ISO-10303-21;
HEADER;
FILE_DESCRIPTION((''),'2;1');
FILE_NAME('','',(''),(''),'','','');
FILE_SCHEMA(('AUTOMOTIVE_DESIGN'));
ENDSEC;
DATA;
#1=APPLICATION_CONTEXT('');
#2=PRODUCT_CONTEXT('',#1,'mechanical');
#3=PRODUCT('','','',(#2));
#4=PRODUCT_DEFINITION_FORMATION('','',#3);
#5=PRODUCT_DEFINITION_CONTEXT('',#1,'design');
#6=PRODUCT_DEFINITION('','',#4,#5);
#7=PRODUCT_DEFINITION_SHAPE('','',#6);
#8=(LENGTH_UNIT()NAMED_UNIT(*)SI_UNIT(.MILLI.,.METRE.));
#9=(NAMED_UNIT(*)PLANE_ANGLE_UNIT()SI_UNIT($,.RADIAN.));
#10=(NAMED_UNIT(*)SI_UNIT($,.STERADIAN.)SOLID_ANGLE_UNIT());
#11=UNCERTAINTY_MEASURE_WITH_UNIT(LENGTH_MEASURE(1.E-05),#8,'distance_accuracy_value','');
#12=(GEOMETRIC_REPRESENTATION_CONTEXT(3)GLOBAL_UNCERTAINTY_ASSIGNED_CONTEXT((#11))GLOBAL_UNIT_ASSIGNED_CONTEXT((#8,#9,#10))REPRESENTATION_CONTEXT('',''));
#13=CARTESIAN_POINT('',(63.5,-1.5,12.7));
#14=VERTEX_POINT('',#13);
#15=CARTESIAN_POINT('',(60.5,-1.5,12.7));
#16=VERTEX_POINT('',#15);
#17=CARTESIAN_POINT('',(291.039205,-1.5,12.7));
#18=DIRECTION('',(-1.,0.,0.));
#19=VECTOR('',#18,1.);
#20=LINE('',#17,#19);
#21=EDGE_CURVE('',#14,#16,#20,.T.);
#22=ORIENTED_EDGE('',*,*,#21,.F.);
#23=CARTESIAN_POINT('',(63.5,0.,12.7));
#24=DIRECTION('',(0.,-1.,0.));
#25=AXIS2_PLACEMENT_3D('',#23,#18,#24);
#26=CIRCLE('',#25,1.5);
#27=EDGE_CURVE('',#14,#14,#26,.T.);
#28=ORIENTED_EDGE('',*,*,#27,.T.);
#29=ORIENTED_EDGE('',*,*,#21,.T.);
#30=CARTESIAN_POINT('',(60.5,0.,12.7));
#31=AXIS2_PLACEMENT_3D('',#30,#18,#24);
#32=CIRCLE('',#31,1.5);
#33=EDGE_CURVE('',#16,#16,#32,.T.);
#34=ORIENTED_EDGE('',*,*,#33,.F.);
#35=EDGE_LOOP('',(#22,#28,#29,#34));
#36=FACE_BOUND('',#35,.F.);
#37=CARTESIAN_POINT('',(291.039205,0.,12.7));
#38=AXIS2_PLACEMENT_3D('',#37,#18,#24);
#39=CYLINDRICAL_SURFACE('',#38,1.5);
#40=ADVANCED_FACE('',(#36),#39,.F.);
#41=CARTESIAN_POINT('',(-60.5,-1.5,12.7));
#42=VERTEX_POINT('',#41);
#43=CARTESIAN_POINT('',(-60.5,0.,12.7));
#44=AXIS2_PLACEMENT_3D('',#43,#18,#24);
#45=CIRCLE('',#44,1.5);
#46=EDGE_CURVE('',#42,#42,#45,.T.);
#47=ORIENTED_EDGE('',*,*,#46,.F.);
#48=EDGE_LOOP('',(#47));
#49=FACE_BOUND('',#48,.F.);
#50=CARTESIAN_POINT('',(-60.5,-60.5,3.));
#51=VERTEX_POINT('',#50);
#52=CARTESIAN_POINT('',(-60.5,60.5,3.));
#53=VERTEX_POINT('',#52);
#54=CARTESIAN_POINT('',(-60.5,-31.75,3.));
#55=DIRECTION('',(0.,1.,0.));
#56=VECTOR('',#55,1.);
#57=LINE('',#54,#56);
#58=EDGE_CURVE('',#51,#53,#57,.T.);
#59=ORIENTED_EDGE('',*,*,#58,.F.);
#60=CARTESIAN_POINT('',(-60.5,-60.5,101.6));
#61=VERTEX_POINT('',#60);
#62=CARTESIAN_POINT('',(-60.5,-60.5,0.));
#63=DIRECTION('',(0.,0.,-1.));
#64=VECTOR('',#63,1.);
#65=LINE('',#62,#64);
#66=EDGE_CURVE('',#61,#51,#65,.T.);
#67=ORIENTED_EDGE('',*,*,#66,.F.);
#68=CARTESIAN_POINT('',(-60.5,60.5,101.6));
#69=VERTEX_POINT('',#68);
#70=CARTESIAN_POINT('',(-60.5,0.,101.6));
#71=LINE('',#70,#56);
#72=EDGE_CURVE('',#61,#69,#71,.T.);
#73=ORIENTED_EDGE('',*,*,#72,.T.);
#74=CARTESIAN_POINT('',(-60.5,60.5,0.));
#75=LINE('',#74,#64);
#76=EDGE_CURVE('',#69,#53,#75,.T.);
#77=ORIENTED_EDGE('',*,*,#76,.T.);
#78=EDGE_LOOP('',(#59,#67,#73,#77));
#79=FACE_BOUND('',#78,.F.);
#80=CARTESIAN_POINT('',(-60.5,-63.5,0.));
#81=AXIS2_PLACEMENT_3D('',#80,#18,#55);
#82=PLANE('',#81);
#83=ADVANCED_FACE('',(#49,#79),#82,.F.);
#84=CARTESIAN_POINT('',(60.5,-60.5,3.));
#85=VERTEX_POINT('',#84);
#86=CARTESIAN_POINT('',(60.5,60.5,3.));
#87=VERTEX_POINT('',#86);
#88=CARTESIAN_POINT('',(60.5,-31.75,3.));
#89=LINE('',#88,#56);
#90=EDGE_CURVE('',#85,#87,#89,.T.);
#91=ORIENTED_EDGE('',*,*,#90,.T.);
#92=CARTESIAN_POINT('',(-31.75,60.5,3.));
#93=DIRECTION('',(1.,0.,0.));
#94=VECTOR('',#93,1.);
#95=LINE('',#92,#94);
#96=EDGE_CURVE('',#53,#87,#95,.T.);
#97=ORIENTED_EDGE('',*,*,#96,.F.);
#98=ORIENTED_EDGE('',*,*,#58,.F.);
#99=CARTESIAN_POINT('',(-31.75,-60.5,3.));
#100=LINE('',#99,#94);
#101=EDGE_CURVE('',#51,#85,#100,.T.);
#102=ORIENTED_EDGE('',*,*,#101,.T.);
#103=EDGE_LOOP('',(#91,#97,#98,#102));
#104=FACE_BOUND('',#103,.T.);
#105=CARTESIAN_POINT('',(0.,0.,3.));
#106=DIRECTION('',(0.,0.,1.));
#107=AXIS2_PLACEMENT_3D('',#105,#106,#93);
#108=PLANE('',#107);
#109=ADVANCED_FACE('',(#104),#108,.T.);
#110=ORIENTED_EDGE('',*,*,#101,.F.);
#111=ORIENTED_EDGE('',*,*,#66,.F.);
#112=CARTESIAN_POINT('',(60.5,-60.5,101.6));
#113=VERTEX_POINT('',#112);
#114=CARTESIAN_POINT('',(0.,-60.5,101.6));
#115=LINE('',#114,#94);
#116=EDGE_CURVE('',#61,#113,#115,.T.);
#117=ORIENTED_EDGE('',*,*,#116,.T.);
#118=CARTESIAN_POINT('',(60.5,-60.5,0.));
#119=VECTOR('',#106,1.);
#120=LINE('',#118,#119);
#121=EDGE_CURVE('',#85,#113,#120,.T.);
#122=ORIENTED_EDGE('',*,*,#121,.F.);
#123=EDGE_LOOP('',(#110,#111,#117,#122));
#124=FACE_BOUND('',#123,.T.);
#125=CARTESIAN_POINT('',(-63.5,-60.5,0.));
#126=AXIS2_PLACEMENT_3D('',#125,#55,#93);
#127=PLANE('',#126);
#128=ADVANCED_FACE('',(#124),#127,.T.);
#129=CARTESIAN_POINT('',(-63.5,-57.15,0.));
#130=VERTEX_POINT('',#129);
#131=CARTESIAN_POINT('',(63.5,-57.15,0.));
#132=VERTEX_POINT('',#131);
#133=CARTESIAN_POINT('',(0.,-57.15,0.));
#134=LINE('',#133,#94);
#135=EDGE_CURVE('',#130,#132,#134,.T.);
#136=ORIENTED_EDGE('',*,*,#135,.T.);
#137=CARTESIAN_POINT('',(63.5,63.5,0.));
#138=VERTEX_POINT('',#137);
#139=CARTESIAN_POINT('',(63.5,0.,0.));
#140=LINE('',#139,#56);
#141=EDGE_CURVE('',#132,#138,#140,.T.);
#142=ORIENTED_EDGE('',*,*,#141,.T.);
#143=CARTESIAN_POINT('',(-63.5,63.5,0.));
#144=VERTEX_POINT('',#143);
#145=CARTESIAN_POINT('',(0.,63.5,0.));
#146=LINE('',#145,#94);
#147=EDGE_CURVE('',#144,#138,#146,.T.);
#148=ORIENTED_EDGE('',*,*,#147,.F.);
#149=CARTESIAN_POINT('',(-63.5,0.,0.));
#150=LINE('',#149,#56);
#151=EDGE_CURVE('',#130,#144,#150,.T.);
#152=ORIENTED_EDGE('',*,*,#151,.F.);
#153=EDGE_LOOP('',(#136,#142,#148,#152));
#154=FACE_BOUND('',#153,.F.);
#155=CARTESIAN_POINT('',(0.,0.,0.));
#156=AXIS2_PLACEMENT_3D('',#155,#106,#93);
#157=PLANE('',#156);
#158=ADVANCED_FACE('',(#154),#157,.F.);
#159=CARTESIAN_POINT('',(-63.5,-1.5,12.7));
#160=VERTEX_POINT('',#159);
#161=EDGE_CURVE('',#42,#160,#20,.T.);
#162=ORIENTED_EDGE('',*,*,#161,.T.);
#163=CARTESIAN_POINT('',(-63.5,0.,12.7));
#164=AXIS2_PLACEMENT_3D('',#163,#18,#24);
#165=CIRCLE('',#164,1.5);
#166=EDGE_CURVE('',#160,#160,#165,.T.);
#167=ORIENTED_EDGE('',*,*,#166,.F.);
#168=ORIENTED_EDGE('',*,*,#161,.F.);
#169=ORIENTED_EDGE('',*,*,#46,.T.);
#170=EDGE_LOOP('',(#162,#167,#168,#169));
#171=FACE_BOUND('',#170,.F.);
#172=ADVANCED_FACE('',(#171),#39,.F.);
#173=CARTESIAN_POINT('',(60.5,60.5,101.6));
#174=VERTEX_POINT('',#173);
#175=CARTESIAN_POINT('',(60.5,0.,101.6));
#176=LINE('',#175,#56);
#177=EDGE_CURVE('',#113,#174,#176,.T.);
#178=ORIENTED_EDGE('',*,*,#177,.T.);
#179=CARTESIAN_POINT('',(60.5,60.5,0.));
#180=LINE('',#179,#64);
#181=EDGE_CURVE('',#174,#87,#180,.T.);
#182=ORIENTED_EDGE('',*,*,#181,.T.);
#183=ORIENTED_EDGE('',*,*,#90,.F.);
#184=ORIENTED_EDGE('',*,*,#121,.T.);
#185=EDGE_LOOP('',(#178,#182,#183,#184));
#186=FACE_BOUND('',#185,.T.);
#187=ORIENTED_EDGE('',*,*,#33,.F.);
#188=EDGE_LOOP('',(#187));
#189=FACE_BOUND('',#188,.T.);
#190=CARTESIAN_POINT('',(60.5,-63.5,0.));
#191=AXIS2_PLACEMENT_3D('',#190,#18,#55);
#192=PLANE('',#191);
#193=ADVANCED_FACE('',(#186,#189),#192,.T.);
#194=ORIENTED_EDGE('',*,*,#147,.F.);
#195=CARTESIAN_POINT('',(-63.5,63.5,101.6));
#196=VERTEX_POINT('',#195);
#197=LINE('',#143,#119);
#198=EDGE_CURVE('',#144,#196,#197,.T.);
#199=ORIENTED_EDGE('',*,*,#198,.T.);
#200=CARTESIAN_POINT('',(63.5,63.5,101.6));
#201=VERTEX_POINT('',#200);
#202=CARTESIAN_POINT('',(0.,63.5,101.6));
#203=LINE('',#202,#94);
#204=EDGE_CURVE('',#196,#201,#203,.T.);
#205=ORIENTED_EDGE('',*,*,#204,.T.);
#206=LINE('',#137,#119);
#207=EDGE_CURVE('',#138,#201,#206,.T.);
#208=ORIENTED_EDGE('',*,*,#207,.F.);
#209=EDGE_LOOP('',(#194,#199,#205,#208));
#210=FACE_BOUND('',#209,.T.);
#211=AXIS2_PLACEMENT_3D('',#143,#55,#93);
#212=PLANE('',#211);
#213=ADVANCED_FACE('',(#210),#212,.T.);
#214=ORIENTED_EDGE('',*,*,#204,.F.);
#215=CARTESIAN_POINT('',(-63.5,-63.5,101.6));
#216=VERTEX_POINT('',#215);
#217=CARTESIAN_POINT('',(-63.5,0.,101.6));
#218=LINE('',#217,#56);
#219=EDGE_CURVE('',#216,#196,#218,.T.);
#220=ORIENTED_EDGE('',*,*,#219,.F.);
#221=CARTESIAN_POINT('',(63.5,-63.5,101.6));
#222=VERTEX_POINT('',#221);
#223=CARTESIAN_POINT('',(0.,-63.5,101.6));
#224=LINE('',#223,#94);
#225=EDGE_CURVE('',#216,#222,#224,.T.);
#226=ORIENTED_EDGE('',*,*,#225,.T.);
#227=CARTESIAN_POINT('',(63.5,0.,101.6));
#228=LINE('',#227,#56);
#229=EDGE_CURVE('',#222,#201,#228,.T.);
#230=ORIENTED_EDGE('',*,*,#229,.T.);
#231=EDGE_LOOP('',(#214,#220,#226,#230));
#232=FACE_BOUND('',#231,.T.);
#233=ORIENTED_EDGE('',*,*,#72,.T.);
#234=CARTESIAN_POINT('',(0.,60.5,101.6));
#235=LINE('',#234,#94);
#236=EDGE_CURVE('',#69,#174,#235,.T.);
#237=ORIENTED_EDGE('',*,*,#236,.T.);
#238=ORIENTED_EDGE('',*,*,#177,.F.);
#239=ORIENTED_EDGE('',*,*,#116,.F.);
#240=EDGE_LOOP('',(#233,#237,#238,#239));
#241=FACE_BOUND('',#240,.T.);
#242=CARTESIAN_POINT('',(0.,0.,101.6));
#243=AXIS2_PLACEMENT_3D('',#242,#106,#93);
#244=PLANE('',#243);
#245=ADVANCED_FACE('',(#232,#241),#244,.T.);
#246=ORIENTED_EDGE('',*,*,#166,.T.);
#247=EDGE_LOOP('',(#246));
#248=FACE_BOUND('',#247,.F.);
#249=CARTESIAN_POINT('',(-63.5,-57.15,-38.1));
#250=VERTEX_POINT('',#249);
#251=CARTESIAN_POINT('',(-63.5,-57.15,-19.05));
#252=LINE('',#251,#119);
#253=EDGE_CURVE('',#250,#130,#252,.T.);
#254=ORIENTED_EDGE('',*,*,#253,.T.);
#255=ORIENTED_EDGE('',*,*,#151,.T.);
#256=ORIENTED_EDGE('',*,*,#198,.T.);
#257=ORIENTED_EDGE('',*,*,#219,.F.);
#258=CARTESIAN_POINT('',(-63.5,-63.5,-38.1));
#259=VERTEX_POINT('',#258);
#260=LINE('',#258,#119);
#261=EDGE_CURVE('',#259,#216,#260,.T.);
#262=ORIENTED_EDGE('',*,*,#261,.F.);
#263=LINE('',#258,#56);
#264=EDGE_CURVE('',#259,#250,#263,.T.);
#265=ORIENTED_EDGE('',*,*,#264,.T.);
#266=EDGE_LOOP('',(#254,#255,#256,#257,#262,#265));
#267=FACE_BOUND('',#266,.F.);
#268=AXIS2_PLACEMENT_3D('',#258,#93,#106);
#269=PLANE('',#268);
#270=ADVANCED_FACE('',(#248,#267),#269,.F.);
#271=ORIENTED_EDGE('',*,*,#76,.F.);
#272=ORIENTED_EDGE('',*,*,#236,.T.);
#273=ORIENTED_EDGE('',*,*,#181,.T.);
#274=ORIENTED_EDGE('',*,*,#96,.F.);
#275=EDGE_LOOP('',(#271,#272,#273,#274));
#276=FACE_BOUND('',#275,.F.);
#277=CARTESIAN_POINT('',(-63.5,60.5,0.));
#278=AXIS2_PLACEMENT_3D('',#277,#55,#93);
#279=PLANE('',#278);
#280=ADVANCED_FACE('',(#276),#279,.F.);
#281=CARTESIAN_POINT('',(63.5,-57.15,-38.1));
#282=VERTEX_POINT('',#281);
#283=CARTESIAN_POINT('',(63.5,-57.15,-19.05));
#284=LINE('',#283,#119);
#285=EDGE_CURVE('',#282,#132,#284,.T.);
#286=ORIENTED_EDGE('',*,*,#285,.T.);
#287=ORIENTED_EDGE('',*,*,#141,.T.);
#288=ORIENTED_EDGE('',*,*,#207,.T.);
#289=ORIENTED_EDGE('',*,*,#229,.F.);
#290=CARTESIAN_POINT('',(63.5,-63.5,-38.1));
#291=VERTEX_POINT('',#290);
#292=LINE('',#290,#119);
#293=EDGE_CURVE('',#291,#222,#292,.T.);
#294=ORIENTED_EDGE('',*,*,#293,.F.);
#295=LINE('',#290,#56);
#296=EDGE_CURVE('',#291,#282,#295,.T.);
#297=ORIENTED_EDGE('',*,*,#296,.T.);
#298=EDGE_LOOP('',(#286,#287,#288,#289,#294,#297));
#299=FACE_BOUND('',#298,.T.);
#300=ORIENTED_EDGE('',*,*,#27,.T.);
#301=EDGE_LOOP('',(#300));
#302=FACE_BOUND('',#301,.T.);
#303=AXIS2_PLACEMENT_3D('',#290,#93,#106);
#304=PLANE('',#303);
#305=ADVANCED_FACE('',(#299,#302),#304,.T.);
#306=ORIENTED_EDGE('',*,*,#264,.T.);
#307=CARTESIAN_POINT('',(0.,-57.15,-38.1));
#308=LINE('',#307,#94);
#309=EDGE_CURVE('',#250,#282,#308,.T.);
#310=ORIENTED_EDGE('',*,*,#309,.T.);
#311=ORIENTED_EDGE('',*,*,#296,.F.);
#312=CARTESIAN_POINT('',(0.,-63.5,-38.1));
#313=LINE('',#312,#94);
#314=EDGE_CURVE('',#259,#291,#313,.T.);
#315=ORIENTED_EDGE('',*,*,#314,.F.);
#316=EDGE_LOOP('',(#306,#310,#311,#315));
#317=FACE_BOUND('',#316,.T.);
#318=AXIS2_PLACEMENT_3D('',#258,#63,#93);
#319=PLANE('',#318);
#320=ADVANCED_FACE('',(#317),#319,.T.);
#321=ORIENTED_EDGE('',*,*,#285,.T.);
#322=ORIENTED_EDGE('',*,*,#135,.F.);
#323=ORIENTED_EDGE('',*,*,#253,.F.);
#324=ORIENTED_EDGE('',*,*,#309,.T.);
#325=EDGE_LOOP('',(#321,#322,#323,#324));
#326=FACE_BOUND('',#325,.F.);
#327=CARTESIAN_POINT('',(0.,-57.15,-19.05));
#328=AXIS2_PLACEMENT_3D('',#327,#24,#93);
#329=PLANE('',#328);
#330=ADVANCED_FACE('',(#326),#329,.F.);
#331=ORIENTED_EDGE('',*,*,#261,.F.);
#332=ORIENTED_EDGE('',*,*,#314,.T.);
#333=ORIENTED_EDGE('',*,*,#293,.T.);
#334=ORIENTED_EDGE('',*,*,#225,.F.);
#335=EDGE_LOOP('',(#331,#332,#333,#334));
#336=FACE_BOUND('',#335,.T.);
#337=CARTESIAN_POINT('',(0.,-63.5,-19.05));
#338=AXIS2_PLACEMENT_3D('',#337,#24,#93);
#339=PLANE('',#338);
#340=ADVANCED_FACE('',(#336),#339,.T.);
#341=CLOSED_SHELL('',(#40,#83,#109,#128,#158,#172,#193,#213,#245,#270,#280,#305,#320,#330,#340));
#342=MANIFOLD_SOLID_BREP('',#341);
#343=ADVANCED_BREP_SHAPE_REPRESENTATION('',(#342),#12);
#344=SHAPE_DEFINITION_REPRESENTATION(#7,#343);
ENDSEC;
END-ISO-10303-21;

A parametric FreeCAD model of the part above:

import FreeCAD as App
import Part
import Sketcher
from FreeCAD import Vector
Q = App.Units.Quantity


def faces_at(feature, points):
    """Names of the faces that lie closest to the given points."""
    faces = feature.Shape.Faces
    near = lambda p: min(range(len(faces)), key=lambda i: faces[i].distToShape(Part.Vertex(*p))[0])
    return sorted({f"Face{near(p) + 1}" for p in points})


def add_polygon(sketch, points):
    """Adds a closed chain of lines whose ends are joined by coincident constraints."""
    first, n = sketch.GeometryCount, len(points)
    for a, b in zip(points, points[1:] + points[:1]):
        sketch.addGeometry(Part.LineSegment(App.Vector(*a, 0), App.Vector(*b, 0)), False)
    for i in range(n):
        sketch.addConstraint(Sketcher.Constraint("Coincident", first + i, 2, first + (i + 1) % n, 1))

doc = App.newDocument("Part")
body = doc.addObject("PartDesign::Body", "Body")

# Sketch on XY plane
sketch1 = doc.addObject("Sketcher::SketchObject", "Sketch")
body.addObject(sketch1)
sketch1.AttachmentSupport = (doc.XY_Plane, [""])
sketch1.MapMode = "FlatFace"
add_polygon(sketch1, [(-64, 64), (-64, -64), (64, -64), (64, 64)])  # lines 0-3
sketch1.addConstraint(Sketcher.Constraint("Vertical", 0))
sketch1.addConstraint(Sketcher.Constraint("Horizontal", 1))
sketch1.addConstraint(Sketcher.Constraint("Vertical", 2))
sketch1.addConstraint(Sketcher.Constraint("Horizontal", 3))
sketch1.addConstraint(Sketcher.Constraint("Symmetric", 0, 2, 2, 2, -1, 1))
sketch1.addConstraint(Sketcher.Constraint("Equal", 3, 0))
sketch1.addConstraint(Sketcher.Constraint("DistanceX", 1, 1, 1, 2, Q("5 in")))
pad1 = doc.addObject("PartDesign::Pad", "Pad")
body.addObject(pad1)
pad1.Profile = sketch1
pad1.Length = Q("4 in")
doc.recompute()

thickness = doc.addObject("PartDesign::Thickness", "Thickness")
body.addObject(thickness)
thickness.Base = (pad1, faces_at(pad1, [(0, 0, 101.6)]))
thickness.Value = 3
thickness.Reversed = True
thickness.Join = "Arc"

# Sketch on XZ plane
sketch2 = doc.addObject("Sketcher::SketchObject", "Sketch001")
body.addObject(sketch2)
sketch2.AttachmentSupport = (doc.XZ_Plane, [""])
sketch2.MapMode = "FlatFace"
sketch2.AttachmentOffset = App.Placement(Vector(0, 0, 2.5 * 25.4), App.Rotation())
add_polygon(sketch2, [(-64, 0), (-64, -38), (64, -38), (64, 0)])  # lines 0-3
sketch2.addConstraint(Sketcher.Constraint("Vertical", 0))
sketch2.addConstraint(Sketcher.Constraint("Horizontal", 1))
sketch2.addConstraint(Sketcher.Constraint("Vertical", 2))
sketch2.addConstraint(Sketcher.Constraint("Horizontal", 3))
sketch2.addConstraint(Sketcher.Constraint("Symmetric", 2, 2, 3, 2, -1, 1))
sketch2.addConstraint(Sketcher.Constraint("DistanceX", 1, 1, 1, 2, Q("5 in")))
sketch2.addConstraint(Sketcher.Constraint("DistanceY", 0, 2, 0, 1, Q("1.5 in")))
pad2 = doc.addObject("PartDesign::Pad", "Pad001")
body.addObject(pad2)
pad2.Profile = sketch2
pad2.Length = Q("0.25 in")
pad2.Reversed = True

# Sketch on YZ plane
sketch3 = doc.addObject("Sketcher::SketchObject", "Sketch002")
body.addObject(sketch3)
sketch3.AttachmentSupport = (doc.YZ_Plane, [""])
sketch3.MapMode = "FlatFace"
sketch3.AttachmentOffset = App.Placement(Vector(0, 0, 2.5 * 25.4), App.Rotation())
sketch3.addGeometry(Part.Circle(Vector(0, 12.7, 0), Vector(0, 0, 1), 1.5), False)
sketch3.addConstraint(Sketcher.Constraint("PointOnObject", 0, 3, -2))
sketch3.addConstraint(Sketcher.Constraint("DistanceY", -1, 1, 0, 3, Q("0.5 in")))
sketch3.addConstraint(Sketcher.Constraint("Diameter", 0, 3.0))
doc.recompute()
hole = doc.addObject("PartDesign::Hole", "Hole")
body.addObject(hole)
hole.Profile = sketch3
hole.ThreadType = "None"
hole.Diameter = 3
hole.DepthType = "ThroughAll"

doc.recompute()
